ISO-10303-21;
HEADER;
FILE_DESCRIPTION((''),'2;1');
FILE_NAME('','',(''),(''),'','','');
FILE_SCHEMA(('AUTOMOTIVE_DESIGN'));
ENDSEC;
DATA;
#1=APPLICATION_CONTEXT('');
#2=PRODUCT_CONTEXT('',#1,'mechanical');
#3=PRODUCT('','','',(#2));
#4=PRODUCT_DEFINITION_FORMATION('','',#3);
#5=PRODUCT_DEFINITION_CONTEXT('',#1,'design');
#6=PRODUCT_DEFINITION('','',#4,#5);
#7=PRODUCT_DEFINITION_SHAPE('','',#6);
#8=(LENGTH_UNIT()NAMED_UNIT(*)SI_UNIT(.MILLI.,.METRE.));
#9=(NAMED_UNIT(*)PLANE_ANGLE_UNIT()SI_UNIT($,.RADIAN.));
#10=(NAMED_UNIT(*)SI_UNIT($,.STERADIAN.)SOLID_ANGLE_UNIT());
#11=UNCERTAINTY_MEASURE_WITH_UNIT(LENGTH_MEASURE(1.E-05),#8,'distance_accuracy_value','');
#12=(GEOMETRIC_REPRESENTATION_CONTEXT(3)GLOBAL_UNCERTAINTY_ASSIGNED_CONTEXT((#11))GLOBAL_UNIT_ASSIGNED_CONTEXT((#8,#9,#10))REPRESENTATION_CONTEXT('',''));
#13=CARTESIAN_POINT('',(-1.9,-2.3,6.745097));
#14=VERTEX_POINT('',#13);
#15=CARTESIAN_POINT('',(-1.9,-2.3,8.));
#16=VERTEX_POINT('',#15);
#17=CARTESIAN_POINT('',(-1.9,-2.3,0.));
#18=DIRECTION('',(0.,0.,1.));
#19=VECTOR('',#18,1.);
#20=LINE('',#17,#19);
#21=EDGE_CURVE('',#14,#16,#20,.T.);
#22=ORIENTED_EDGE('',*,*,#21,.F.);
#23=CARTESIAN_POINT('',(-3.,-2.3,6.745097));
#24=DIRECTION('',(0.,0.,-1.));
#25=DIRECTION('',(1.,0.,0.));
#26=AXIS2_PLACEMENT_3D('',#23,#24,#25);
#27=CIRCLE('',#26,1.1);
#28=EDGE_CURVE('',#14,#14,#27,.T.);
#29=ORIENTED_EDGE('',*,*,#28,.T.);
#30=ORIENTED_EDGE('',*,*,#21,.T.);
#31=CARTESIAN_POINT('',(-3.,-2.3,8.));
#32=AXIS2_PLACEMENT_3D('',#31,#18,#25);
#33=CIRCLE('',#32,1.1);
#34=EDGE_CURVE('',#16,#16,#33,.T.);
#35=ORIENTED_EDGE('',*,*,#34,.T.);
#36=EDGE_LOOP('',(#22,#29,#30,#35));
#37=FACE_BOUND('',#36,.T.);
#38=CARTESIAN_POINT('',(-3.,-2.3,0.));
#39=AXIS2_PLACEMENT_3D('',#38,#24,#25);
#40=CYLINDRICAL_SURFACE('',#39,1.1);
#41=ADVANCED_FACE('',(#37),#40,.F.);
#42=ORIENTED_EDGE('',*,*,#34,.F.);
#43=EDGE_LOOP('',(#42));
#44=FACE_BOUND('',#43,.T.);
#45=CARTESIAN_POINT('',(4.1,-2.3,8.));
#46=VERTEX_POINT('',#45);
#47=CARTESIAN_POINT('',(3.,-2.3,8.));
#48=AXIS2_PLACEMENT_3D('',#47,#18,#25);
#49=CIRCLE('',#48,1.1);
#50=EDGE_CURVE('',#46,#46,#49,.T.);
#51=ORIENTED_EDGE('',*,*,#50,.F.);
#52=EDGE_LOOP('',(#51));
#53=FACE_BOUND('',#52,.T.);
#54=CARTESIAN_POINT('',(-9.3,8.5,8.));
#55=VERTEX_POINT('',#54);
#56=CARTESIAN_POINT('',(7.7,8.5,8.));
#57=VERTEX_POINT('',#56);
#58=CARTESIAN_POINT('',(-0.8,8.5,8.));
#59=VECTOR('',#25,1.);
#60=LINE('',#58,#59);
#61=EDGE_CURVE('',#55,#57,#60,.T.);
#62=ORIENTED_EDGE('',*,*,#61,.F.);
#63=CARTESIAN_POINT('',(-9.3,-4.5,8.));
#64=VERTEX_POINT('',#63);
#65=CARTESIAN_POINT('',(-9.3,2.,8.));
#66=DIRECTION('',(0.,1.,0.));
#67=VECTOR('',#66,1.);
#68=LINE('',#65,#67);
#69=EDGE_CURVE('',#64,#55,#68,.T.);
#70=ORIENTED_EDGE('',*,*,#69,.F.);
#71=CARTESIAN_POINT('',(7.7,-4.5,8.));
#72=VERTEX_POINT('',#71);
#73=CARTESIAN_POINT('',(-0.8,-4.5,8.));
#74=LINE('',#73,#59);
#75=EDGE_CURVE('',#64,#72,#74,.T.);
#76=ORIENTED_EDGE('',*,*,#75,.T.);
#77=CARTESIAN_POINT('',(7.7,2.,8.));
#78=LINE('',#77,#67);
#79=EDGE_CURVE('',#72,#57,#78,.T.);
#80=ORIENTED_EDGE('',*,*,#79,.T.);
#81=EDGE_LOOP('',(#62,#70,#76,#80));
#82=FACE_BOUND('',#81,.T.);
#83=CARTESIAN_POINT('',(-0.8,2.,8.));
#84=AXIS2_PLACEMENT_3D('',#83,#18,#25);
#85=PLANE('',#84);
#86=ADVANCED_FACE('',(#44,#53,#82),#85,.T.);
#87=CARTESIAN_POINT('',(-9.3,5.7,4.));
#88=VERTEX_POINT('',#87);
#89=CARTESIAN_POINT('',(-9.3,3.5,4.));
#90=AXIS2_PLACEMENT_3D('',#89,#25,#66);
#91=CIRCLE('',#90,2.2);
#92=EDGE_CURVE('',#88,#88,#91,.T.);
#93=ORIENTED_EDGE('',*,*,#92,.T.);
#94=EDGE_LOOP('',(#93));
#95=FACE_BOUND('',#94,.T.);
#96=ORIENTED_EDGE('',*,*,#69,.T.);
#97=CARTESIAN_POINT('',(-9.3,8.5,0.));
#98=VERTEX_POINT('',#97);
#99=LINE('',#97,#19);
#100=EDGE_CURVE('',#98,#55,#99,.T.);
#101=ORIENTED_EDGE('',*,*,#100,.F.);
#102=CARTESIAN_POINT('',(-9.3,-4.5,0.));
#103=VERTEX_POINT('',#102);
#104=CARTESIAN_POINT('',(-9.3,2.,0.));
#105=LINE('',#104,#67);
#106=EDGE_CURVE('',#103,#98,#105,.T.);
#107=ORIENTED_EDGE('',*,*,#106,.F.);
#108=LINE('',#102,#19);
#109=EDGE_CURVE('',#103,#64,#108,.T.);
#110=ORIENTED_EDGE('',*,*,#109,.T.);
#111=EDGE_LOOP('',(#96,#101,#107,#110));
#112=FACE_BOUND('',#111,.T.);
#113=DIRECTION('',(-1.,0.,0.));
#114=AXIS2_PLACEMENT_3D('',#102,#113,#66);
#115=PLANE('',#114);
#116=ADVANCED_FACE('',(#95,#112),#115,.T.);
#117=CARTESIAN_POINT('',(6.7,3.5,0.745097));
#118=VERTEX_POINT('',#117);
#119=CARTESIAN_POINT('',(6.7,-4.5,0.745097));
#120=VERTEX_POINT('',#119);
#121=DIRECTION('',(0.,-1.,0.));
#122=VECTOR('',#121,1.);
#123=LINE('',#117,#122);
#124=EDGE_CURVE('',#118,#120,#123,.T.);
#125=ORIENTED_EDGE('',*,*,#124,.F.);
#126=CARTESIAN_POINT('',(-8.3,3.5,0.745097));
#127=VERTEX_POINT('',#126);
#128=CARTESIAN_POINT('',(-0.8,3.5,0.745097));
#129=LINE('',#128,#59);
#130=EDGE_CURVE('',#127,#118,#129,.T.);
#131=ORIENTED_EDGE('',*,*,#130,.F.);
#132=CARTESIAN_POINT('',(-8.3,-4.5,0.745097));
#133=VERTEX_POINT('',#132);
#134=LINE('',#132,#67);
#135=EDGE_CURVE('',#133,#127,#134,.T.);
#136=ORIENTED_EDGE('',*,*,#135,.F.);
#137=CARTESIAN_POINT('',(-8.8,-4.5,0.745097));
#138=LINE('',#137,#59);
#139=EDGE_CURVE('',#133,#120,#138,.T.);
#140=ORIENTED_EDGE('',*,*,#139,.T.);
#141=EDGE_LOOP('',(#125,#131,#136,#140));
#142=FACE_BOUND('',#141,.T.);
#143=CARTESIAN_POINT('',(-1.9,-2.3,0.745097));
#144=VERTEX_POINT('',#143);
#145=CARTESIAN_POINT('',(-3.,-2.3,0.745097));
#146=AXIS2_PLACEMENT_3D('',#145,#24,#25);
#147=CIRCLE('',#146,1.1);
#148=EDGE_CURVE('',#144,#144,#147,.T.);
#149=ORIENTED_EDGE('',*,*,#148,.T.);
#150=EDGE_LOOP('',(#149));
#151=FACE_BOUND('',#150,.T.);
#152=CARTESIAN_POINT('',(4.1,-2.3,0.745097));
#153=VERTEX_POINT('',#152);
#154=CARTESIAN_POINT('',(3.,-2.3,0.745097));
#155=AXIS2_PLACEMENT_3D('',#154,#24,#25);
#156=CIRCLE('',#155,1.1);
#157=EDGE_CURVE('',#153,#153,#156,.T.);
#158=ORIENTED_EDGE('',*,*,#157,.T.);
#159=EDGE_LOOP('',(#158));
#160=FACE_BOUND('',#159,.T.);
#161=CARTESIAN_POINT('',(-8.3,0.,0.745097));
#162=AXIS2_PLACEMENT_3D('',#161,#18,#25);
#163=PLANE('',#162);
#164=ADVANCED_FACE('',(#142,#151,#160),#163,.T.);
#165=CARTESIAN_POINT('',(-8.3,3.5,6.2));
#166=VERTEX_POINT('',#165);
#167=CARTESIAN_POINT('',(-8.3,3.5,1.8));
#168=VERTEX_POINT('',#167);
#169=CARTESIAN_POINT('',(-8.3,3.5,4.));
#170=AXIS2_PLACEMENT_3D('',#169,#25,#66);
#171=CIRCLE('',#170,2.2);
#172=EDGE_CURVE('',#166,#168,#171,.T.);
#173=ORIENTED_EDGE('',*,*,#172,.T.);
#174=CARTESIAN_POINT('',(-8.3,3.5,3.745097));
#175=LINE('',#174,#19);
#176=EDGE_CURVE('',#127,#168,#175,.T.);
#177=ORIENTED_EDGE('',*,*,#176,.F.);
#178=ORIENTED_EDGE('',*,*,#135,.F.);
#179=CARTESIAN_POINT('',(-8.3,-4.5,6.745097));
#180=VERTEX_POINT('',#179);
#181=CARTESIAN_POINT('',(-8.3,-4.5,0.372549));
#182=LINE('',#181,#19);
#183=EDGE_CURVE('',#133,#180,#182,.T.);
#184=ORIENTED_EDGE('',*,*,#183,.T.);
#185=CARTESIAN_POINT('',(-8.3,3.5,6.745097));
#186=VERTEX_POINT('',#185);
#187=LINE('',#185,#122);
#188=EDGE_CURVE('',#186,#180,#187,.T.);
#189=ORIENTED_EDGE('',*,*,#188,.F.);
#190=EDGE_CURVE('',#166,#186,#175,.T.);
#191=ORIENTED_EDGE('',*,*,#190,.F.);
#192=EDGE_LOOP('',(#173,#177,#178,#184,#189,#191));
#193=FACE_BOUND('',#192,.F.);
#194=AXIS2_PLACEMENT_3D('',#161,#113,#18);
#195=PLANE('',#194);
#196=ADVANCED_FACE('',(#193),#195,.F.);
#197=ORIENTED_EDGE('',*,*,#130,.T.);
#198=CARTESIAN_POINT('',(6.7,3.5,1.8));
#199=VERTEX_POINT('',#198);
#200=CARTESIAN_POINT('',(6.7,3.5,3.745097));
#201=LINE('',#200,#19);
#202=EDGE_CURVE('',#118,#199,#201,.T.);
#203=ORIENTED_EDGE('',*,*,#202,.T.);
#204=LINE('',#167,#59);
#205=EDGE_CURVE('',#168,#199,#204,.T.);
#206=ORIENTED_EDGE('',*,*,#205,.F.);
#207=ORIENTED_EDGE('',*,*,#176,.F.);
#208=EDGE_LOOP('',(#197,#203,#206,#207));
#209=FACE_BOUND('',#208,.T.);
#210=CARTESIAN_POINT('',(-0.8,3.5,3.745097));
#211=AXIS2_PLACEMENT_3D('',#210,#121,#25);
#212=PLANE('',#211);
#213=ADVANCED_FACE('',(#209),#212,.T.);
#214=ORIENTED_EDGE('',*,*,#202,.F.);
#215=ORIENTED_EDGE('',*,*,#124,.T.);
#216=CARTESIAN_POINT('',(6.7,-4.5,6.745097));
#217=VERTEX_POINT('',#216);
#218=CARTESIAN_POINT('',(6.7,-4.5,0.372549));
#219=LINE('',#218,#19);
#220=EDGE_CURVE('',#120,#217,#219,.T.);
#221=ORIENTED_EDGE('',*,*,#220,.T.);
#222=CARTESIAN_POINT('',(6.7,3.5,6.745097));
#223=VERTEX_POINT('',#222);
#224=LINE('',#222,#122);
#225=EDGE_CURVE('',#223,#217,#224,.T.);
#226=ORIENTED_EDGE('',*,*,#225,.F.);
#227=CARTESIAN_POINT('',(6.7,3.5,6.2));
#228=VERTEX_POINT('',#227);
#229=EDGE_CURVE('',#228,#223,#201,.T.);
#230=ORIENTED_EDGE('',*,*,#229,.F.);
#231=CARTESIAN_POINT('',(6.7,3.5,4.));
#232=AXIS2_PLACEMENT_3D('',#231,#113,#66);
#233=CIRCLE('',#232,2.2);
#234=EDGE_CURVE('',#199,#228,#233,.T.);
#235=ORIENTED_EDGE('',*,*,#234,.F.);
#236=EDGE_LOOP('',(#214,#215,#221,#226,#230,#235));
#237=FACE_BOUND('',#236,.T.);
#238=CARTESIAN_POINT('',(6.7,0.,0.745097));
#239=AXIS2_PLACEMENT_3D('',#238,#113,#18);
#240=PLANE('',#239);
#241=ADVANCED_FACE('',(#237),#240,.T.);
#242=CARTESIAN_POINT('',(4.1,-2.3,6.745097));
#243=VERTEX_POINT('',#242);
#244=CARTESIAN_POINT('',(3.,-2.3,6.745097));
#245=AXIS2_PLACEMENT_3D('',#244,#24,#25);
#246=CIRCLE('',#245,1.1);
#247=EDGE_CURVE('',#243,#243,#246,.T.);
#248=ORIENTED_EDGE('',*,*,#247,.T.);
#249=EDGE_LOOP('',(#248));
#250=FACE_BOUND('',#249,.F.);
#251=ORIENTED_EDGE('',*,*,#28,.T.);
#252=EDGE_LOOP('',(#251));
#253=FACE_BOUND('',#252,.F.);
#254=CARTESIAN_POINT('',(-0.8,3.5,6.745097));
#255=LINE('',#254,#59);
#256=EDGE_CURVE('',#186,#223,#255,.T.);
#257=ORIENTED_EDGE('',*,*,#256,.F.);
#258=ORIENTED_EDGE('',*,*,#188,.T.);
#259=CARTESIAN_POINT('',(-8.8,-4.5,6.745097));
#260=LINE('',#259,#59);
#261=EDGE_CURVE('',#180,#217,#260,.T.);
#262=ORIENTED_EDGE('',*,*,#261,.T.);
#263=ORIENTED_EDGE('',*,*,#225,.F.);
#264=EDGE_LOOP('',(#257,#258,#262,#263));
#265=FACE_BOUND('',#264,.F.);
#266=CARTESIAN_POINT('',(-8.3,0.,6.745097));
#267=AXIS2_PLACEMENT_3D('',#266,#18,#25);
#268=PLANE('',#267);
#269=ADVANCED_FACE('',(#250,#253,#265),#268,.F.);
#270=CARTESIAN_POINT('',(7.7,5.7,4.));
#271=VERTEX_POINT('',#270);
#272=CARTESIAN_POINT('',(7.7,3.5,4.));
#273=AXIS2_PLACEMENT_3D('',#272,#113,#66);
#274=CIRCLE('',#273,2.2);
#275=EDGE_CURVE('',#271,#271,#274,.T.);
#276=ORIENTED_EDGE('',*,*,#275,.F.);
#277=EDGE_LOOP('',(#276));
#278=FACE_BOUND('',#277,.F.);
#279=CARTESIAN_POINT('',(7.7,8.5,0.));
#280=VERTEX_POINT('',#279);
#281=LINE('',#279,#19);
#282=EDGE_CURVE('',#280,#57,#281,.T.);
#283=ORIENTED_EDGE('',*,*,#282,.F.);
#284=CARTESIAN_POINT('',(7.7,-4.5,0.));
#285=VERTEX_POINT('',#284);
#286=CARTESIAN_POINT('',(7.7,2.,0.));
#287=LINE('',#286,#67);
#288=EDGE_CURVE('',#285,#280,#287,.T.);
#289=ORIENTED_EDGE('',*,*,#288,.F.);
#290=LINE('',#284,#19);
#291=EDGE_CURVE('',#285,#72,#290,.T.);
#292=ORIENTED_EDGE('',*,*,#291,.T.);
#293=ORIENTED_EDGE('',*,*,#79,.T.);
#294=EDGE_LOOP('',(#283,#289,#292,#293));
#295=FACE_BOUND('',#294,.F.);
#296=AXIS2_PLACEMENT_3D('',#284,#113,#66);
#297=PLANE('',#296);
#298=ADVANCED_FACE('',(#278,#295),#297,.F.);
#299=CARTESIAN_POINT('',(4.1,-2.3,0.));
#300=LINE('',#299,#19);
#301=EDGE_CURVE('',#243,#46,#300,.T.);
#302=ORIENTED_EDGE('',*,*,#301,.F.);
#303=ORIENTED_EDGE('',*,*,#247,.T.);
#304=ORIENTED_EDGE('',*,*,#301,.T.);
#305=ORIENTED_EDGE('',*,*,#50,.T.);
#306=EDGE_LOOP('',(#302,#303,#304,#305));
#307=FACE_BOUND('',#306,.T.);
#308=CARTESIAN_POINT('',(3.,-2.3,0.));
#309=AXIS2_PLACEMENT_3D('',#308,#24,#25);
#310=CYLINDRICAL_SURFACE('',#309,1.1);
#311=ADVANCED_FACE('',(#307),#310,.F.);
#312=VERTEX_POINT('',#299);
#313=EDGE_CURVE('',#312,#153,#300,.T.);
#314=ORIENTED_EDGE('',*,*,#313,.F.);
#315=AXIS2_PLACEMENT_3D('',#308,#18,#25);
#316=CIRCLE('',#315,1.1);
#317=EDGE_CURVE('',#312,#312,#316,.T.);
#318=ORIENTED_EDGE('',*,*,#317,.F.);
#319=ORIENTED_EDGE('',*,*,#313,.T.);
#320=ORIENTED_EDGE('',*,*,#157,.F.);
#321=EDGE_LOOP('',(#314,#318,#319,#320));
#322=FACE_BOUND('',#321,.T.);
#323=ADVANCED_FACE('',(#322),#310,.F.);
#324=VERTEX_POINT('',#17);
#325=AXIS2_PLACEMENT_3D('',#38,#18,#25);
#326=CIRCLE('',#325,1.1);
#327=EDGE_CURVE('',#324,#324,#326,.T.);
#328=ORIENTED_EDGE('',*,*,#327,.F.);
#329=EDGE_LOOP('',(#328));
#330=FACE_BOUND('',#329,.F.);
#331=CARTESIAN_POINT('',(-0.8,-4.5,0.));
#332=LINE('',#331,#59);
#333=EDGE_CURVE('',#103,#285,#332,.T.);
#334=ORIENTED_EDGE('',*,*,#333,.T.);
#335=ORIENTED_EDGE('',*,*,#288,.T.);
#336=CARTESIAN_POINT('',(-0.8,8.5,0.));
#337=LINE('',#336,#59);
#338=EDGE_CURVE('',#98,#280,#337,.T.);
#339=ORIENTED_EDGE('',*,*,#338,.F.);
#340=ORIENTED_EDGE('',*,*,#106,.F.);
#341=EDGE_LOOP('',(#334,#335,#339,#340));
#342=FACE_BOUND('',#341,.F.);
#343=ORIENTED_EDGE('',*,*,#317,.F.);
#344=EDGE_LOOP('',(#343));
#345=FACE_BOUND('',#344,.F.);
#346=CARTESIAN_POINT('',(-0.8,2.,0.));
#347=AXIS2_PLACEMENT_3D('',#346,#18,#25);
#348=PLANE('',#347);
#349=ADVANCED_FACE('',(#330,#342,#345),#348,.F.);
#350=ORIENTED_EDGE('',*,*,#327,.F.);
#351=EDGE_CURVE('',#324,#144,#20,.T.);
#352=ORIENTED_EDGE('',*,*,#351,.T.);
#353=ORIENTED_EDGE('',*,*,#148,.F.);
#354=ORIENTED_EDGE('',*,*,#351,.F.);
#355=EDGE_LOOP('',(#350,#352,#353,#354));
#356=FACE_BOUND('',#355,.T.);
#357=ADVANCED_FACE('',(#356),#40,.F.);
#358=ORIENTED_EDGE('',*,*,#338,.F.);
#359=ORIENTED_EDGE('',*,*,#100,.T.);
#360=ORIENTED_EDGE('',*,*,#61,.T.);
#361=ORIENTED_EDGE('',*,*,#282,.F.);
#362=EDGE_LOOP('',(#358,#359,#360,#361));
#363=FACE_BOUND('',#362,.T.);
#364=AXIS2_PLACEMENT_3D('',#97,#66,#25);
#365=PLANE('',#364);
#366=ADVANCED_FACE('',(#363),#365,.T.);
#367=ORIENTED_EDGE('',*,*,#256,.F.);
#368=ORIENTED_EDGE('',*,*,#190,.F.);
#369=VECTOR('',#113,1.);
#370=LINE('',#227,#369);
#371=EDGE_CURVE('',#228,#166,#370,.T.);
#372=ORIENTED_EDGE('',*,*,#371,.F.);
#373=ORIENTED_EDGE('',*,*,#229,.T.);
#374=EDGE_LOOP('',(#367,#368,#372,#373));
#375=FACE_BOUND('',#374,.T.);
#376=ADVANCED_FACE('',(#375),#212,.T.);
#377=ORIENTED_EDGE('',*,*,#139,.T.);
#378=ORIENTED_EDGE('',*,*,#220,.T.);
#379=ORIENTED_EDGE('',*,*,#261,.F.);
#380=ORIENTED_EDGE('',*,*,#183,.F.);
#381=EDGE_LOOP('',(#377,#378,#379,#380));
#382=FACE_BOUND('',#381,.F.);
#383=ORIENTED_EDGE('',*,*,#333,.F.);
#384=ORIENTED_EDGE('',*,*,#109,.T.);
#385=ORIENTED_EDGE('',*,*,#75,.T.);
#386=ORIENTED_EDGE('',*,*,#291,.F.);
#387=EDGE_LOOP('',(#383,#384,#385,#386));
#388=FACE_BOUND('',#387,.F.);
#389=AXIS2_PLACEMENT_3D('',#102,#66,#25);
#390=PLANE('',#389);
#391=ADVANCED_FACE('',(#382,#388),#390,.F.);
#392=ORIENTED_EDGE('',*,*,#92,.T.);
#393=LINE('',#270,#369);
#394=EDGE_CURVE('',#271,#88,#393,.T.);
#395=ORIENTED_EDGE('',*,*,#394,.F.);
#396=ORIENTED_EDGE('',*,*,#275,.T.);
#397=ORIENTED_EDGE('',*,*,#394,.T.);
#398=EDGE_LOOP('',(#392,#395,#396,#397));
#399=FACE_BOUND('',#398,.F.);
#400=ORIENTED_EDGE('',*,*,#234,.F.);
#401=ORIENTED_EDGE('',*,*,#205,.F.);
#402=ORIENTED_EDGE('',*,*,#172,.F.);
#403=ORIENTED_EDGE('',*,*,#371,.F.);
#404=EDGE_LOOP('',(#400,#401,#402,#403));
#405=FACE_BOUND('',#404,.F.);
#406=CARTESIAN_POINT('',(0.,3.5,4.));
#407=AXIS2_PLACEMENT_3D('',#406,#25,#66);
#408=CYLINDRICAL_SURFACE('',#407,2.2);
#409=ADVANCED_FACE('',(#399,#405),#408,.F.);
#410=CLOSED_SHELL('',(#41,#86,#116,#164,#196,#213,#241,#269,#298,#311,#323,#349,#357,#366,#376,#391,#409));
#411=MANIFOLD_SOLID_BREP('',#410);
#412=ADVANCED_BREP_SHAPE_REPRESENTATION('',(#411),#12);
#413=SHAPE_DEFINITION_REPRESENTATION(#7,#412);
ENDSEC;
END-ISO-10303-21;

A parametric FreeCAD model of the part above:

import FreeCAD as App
import Part
import Sketcher
Q = App.Units.Quantity


def add_polygon(sketch, points):
    """Adds a closed chain of lines whose ends are joined by coincident constraints."""
    first, n = sketch.GeometryCount, len(points)
    for a, b in zip(points, points[1:] + points[:1]):
        sketch.addGeometry(Part.LineSegment(App.Vector(*a, 0), App.Vector(*b, 0)), False)
    for i in range(n):
        sketch.addConstraint(Sketcher.Constraint("Coincident", first + i, 2, first + (i + 1) % n, 1))

doc = App.newDocument("Part")
body = doc.addObject("PartDesign::Body", "Body")

# Sketch on XY plane
sketch1 = body.newObject("Sketcher::SketchObject", "Sketch")
sketch1.AttachmentSupport = (doc.getObject("XY_Plane"), [""])
sketch1.MapMode = "FlatFace"
add_polygon(sketch1, [(-9.3, 8.5), (-9.3, -4.5), (7.7, -4.5), (7.7, 8.5)])  # lines 0-3
sketch1.addGeometry(Part.Circle(App.Vector(-3, -2.3, 0), App.Vector(0, 0, 1), 1.1), False)  # 4
sketch1.addGeometry(Part.Circle(App.Vector(3, -2.3, 0), App.Vector(0, 0, 1), 1.1), False)  # 5
sketch1.addConstraint([
    Sketcher.Constraint("Vertical", 0),
    Sketcher.Constraint("Horizontal", 1),
    Sketcher.Constraint("Vertical", 2),
    Sketcher.Constraint("Horizontal", 3),
    Sketcher.Constraint("Equal", 4, 5),
    Sketcher.Constraint("Symmetric", 4, 3, 5, 3, -2),
    Sketcher.Constraint("Diameter", 4, Q("2.2 mm")),
    Sketcher.Constraint("DistanceX", 1, 1, 1, 2, Q("17 mm")),
    Sketcher.Constraint("DistanceY", 0, 2, 0, 1, Q("13 mm")),
    Sketcher.Constraint("DistanceX", 4, 3, -1, 1, Q("3 mm")),
    Sketcher.Constraint("DistanceY", 4, 3, -1, 1, Q("2.3 mm")),
    Sketcher.Constraint("DistanceX", 0, 2, -1, 1, Q("9.3 mm")),
    Sketcher.Constraint("DistanceY", 0, 2, -1, 1, Q("4.5 mm")),
])
pad1 = body.newObject("PartDesign::Pad", "Pad")
pad1.Profile = sketch1
pad1.Length = 8

# Sketch on XZ plane
sketch2 = body.newObject("Sketcher::SketchObject", "Sketch001")
sketch2.AttachmentSupport = (doc.getObject("XZ_Plane"), [""])
sketch2.MapMode = "FlatFace"
add_polygon(sketch2, [(-8, 7), (-8, 1), (7, 1), (7, 7)])  # lines 0-3
sketch2.addConstraint([
    Sketcher.Constraint("Vertical", 0),
    Sketcher.Constraint("Horizontal", 1),
    Sketcher.Constraint("Vertical", 2),
    Sketcher.Constraint("Horizontal", 3),
    Sketcher.Constraint("DistanceX", 1, 1, 1, 2, Q("15 mm")),
    Sketcher.Constraint("DistanceY", 0, 2, 0, 1, Q("6 mm")),
    Sketcher.Constraint("DistanceX", 0, 2, -1, 1, Q("8.3 mm")),
    Sketcher.Constraint("DistanceY", -1, 1, 0, 2, Q("0.745097 mm")),
])
pocket1 = body.newObject("PartDesign::Pocket", "Pocket")
pocket1.Profile = sketch2
pocket1.Type = "TwoLengths"
pocket1.Length = 4.501
pocket1.Length2 = 3.5
pocket1.Reversed = True

# Sketch on YZ plane
sketch3 = body.newObject("Sketcher::SketchObject", "Sketch002")
sketch3.AttachmentSupport = (doc.getObject("YZ_Plane"), [""])
sketch3.MapMode = "FlatFace"
sketch3.addGeometry(Part.Circle(App.Vector(3.5, 4, 0), App.Vector(0, 0, 1), 2.2), False)
sketch3.addConstraint([
    Sketcher.Constraint("Diameter", 0, Q("4.4 mm")),
    Sketcher.Constraint("DistanceY", -1, 1, 0, 3, Q("4 mm")),
    Sketcher.Constraint("DistanceX", -1, 1, 0, 3, Q("3.5 mm")),
])
pocket2 = body.newObject("PartDesign::Pocket", "Pocket001")
pocket2.Profile = sketch3
pocket2.Type = "ThroughAll"
pocket2.Midplane = True

doc.recompute()
